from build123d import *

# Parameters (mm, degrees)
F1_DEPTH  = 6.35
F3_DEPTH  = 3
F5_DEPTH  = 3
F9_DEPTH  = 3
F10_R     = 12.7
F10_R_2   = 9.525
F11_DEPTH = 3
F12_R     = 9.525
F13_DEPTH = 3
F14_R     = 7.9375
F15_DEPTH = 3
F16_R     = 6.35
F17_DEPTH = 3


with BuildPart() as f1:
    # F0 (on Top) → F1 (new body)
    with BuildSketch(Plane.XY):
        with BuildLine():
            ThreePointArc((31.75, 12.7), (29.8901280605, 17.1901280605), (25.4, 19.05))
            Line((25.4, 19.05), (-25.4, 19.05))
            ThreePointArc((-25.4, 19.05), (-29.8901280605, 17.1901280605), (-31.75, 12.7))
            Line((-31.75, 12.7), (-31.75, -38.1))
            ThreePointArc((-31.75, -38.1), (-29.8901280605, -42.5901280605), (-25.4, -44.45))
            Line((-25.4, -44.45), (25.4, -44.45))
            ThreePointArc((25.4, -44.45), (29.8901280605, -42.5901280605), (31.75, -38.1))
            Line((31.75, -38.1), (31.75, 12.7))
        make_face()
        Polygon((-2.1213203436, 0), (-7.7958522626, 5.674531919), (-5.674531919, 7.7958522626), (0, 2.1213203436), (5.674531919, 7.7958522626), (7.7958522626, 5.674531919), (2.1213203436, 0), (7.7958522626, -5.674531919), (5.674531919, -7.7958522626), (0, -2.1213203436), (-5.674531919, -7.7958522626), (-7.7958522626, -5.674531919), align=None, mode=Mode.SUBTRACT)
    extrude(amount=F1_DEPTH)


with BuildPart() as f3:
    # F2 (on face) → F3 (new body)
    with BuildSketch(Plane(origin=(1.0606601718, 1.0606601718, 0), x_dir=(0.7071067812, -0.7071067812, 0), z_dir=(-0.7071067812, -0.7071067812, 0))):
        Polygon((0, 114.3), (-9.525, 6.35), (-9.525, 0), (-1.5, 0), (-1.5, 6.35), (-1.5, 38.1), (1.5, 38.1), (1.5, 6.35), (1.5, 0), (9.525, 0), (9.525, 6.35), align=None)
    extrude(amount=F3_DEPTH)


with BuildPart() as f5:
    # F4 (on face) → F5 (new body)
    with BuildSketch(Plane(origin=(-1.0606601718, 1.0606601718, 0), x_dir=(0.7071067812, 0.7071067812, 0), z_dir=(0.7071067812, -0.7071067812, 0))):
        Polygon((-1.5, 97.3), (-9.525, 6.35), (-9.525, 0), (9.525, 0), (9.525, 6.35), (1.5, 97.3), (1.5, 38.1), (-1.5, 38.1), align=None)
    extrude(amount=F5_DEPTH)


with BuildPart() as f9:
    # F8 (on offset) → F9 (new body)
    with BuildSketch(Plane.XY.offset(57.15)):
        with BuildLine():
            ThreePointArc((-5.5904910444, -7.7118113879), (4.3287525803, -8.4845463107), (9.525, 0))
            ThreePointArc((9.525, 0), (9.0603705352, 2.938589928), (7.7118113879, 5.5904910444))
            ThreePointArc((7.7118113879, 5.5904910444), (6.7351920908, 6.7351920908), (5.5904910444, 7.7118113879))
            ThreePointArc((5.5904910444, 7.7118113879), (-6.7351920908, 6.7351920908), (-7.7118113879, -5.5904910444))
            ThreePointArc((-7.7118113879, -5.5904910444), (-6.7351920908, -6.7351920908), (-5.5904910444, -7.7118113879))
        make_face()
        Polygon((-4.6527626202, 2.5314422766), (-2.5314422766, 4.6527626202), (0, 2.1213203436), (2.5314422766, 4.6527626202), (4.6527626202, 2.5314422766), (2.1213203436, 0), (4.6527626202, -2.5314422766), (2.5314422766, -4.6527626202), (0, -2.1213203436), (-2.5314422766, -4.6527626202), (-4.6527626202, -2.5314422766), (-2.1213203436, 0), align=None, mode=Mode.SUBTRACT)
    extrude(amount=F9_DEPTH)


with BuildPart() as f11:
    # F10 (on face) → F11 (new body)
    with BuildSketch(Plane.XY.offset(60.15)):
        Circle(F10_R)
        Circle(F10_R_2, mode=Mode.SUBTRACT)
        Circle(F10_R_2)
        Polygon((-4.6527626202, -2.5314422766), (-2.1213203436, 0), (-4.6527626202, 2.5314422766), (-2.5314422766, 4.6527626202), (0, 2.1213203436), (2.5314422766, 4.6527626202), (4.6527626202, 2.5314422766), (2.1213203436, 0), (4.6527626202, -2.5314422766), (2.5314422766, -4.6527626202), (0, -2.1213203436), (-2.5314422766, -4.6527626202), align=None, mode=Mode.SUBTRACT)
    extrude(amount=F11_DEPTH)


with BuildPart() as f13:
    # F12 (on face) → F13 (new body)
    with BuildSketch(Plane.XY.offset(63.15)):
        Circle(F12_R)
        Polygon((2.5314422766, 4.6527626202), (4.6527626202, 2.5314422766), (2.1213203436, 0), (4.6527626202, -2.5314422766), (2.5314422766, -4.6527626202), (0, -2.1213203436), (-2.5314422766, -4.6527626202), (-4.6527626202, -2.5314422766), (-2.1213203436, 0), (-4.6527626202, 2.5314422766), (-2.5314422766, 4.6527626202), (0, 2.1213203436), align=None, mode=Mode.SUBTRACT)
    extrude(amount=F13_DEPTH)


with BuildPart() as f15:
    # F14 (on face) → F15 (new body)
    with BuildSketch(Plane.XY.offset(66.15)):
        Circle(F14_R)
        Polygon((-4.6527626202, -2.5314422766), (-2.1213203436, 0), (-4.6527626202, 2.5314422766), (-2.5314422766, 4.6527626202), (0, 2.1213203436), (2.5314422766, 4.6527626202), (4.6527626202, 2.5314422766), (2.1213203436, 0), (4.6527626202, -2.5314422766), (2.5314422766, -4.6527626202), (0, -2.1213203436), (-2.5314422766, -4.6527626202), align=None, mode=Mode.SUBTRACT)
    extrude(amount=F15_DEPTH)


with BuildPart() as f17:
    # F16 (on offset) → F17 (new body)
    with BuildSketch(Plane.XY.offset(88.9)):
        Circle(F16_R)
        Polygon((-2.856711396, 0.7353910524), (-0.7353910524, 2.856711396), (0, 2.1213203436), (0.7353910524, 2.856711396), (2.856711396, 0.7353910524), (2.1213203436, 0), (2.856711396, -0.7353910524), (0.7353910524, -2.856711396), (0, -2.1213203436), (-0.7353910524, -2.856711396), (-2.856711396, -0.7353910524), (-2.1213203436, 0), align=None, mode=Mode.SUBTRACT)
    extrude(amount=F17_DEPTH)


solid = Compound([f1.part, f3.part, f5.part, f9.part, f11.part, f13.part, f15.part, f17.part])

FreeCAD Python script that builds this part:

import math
import FreeCAD as App
import Part
import Sketcher
Q = App.Units.Quantity


def add_polygon(sketch, points):
    """Adds a closed chain of lines whose ends are joined by coincident constraints."""
    first, n = sketch.GeometryCount, len(points)
    for a, b in zip(points, points[1:] + points[:1]):
        sketch.addGeometry(Part.LineSegment(App.Vector(*a, 0), App.Vector(*b, 0)), False)
    for i in range(n):
        sketch.addConstraint(Sketcher.Constraint("Coincident", first + i, 2, first + (i + 1) % n, 1))

doc = App.newDocument("Part")
params = doc.addObject("Spreadsheet::Sheet", "Params")
for row, (alias, value) in enumerate([
    ("sketch1_width", "2 in"),
    ("sketch1_radius", "0.25 in"),
    ("pad1_length", "0.25 in"),
    ("sketch2_height", "1.5 in"),
    ("sketch2_height2", "0.25 in"),
    ("pad2_length", "3 mm"),
    ("sketch3_width", "0.75 in"),
    ("sketch3_height", "0.25 in"),
    ("pad3_length", "3 mm"),
    ("sketch4_radius", "0.375 in"),
    ("pad4_length", "3 mm"),
    ("sketch5_diameter", "1 in"),
    ("pad5_length", "3 mm"),
    ("sketch6_diameter", "0.75 in"),
    ("pad6_length", "3 mm"),
    ("sketch7_diameter", "0.625 in"),
    ("pad7_length", "3 mm"),
    ("sketch8_diameter", "0.5 in"),
    ("pad8_length", "3 mm"),
], start=1):
    params.set(f"A{row}", alias)
    params.set(f"B{row}", "=" + value)
    params.setAlias(f"B{row}", alias)

body = doc.addObject("PartDesign::Body", "Body")

# Sketch on XY plane
sketch1 = doc.addObject("Sketcher::SketchObject", "Sketch")
body.addObject(sketch1)
sketch1.AttachmentSupport = (doc.XY_Plane, [""])
sketch1.MapMode = "FlatFace"
sketch1.addGeometry(Part.ArcOfCircle(Part.Circle(App.Vector(25.4, 12.7, 0), App.Vector(0, 0, 1), 6.3), math.radians(0), math.radians(90)), False)  # 0
sketch1.addGeometry(Part.LineSegment(App.Vector(25.4, 19.1, 0), App.Vector(-25.4, 19.1, 0)), False)  # 1
sketch1.addGeometry(Part.ArcOfCircle(Part.Circle(App.Vector(-25.4, 12.7, 0), App.Vector(0, 0, 1), 6.3), math.radians(90), math.radians(180)), False)  # 2
sketch1.addGeometry(Part.LineSegment(App.Vector(-31.8, 12.7, 0), App.Vector(-31.8, -38.1, 0)), False)  # 3
sketch1.addGeometry(Part.ArcOfCircle(Part.Circle(App.Vector(-25.4, -38.1, 0), App.Vector(0, 0, 1), 6.3), math.radians(180), math.radians(270)), False)  # 4
sketch1.addGeometry(Part.LineSegment(App.Vector(-25.4, -44.5, 0), App.Vector(25.4, -44.5, 0)), False)  # 5
sketch1.addGeometry(Part.ArcOfCircle(Part.Circle(App.Vector(25.4, -38.1, 0), App.Vector(0, 0, 1), 6.3), math.radians(-90), math.radians(0)), False)  # 6
sketch1.addGeometry(Part.LineSegment(App.Vector(31.8, -38.1, 0), App.Vector(31.8, 12.7, 0)), False)  # 7
add_polygon(sketch1, [(-7.8, -5.7), (-2.1, 0), (-7.8, 5.7), (-5.7, 7.8), (0, 2.1), (5.7, 7.8), (7.8, 5.7), (2.1, 0), (7.8, -5.7), (5.7, -7.8), (0, -2.1), (-5.7, -7.8)])  # lines 8-19
sketch1.addConstraint([
    Sketcher.Constraint("Tangent", 0, 2, 1, 1),
    Sketcher.Constraint("Tangent", 1, 2, 2, 1),
    Sketcher.Constraint("Tangent", 2, 2, 3, 1),
    Sketcher.Constraint("Tangent", 3, 2, 4, 1),
    Sketcher.Constraint("Tangent", 4, 2, 5, 1),
    Sketcher.Constraint("Tangent", 5, 2, 6, 1),
    Sketcher.Constraint("Tangent", 6, 2, 7, 1),
    Sketcher.Constraint("Tangent", 7, 2, 0, 1),
    Sketcher.Constraint("Horizontal", 1),
    Sketcher.Constraint("Vertical", 3),
    Sketcher.Constraint("Horizontal", 5),
    Sketcher.Constraint("Vertical", 7),
    Sketcher.Constraint("Equal", 0, 2),
    Sketcher.Constraint("Equal", 2, 4),
    Sketcher.Constraint("Equal", 4, 6),
    Sketcher.Constraint("Symmetric", 8, 2, 14, 2, -1, 1),
    Sketcher.Constraint("Symmetric", 9, 2, 15, 2, -1, 1),
    Sketcher.Constraint("Symmetric", 10, 2, 16, 2, -1, 1),
    Sketcher.Constraint("Symmetric", 11, 2, 17, 2, -1, 1),
    Sketcher.Constraint("Symmetric", 12, 2, 18, 2, -1, 1),
    Sketcher.Constraint("Symmetric", 13, 2, 19, 2, -1, 1),
    Sketcher.Constraint("Symmetric", 10, 2, 12, 2, -2),
    Sketcher.Constraint("Symmetric", 9, 2, 13, 2, -2),
    Sketcher.Constraint("PointOnObject", 8, 2, -1),
    Sketcher.Constraint("PointOnObject", 11, 2, -2),
    Sketcher.Constraint("Perpendicular", 8, 9),
    Sketcher.Constraint("Perpendicular", 9, 10),
    Sketcher.Constraint("Perpendicular", 10, 11),
    Sketcher.Constraint("Equal", 5, 3),
    Sketcher.Constraint("Equal", 9, 11),
    Sketcher.Constraint("DistanceX", 1, 2, 1, 1, Q("2 in")),
    Sketcher.Constraint("Radius", 0, Q("0.25 in")),
    Sketcher.Constraint("DistanceX", -1, 1, 0, 3, Q("1 in")),
    Sketcher.Constraint("DistanceY", -1, 1, 0, 3, Q("0.5 in")),
    Sketcher.Constraint("Distance", 8, Q("8.025 mm")),
    Sketcher.Constraint("Distance", 10, Q("3 mm")),
])
sketch1.setExpression("Constraints[42]", "Params.sketch1_width")
sketch1.setExpression("Constraints[43]", "Params.sketch1_radius")
pad1 = doc.addObject("PartDesign::Pad", "Pad")
body.addObject(pad1)
pad1.Profile = sketch1
pad1.setExpression("Length", "Params.pad1_length")
body2 = doc.addObject("PartDesign::Body", "Body001")

# Sketch on an angled plane
sketch2 = doc.addObject("Sketcher::SketchObject", "Sketch001")
body2.addObject(sketch2)
sketch2.Placement = App.Placement(App.Vector(1.06066, 1.06066, 0), App.Rotation(App.Vector(0.707106781, -0.707106781, 0), App.Vector(0, 0, 0.999999999), App.Vector(-0.707106781, -0.707106781, 0), "ZXY"))
add_polygon(sketch2, [(0, 114.3), (-9.5, 6.3), (-9.5, 0), (-1.5, 0), (-1.5, 38.1), (1.5, 38.1), (1.5, 0), (9.5, 0), (9.5, 6.3)])  # lines 0-8
sketch2.addConstraint([
    Sketcher.Constraint("Vertical", 1),
    Sketcher.Constraint("Horizontal", 2),
    Sketcher.Constraint("Vertical", 3),
    Sketcher.Constraint("Horizontal", 4),
    Sketcher.Constraint("Vertical", 5),
    Sketcher.Constraint("Horizontal", 6),
    Sketcher.Constraint("Vertical", 7),
    Sketcher.Constraint("Symmetric", 2, 2, 5, 2, -1, 1),
    Sketcher.Constraint("Symmetric", 1, 2, 6, 2, -2),
    Sketcher.Constraint("PointOnObject", 8, 2, -2),
    Sketcher.Constraint("Horizontal", 0, 2, 7, 2),
    Sketcher.Constraint("DistanceY", 3, 1, 3, 2, Q("1.5 in")),
    Sketcher.Constraint("DistanceY", 3, 2, 8, 2, Q("3 in")),
    Sketcher.Constraint("DistanceY", 1, 2, 1, 1, Q("0.25 in")),
    Sketcher.Constraint("DistanceX", 1, 2, 6, 2, Q("0.75 in")),
    Sketcher.Constraint("DistanceX", 2, 1, 2, 2, Q("8.025 mm")),
])
sketch2.setExpression("Constraints[20]", "Params.sketch2_height")
sketch2.setExpression("Constraints[22]", "Params.sketch2_height2")
pad2 = doc.addObject("PartDesign::Pad", "Pad001")
body2.addObject(pad2)
pad2.Profile = sketch2
pad2.setExpression("Length", "Params.pad2_length")
body3 = doc.addObject("PartDesign::Body", "Body002")

# Sketch on an angled plane
sketch3 = doc.addObject("Sketcher::SketchObject", "Sketch002")
body3.addObject(sketch3)
sketch3.Placement = App.Placement(App.Vector(-1.06066, 1.06066, 0), App.Rotation(App.Vector(0.707106781, 0.707106781, 0), App.Vector(0, 0, 0.999999999), App.Vector(0.707106781, -0.707106781, 0), "ZXY"))
add_polygon(sketch3, [(-1.5, 97.3), (-9.5, 6.3), (-9.5, 0), (9.5, 0), (9.5, 6.3), (1.5, 97.3), (1.5, 38.1), (-1.5, 38.1)])  # lines 0-7
sketch3.addConstraint([
    Sketcher.Constraint("Vertical", 1),
    Sketcher.Constraint("Horizontal", 2),
    Sketcher.Constraint("Vertical", 3),
    Sketcher.Constraint("Vertical", 5),
    Sketcher.Constraint("Horizontal", 6),
    Sketcher.Constraint("Vertical", 7),
    Sketcher.Constraint("Symmetric", 1, 2, 2, 2, -1, 1),
    Sketcher.Constraint("Symmetric", 4, 2, 7, 2, -2),
    Sketcher.Constraint("Horizontal", 0, 2, 3, 2),
    Sketcher.Constraint("DistanceX", 2, 1, 2, 2, Q("0.75 in")),
    Sketcher.Constraint("DistanceY", 1, 2, 1, 1, Q("0.25 in")),
    Sketcher.Constraint("DistanceY", -1, 1, 5, 2, Q("1.5 in")),
    Sketcher.Constraint("DistanceX", 6, 2, 6, 1, Q("3 mm")),
    Sketcher.Constraint("DistanceY", 5, 2, 5, 1, Q("59.2 mm")),
])
sketch3.setExpression("Constraints[17]", "Params.sketch3_width")
sketch3.setExpression("Constraints[18]", "Params.sketch3_height")
pad3 = doc.addObject("PartDesign::Pad", "Pad002")
body3.addObject(pad3)
pad3.Profile = sketch3
pad3.setExpression("Length", "Params.pad3_length")
body4 = doc.addObject("PartDesign::Body", "Body003")

# Sketch on XY plane
sketch4 = doc.addObject("Sketcher::SketchObject", "Sketch003")
body4.addObject(sketch4)
sketch4.AttachmentSupport = (doc.getObject("XY_Plane003"), [""])
sketch4.MapMode = "FlatFace"
sketch4.AttachmentOffset = App.Placement(App.Vector(0, 0, 2.25 * 25.4), App.Rotation())
sketch4.addGeometry(Part.ArcOfCircle(Part.Circle(App.Vector(0, 0, 0), App.Vector(0, 0, 1), 9.5), math.radians(-126), math.radians(36)), False)  # 0
sketch4.addGeometry(Part.ArcOfCircle(Part.Circle(App.Vector(0, 0, 0), App.Vector(0, 0, 1), 9.5), math.radians(35.94), math.radians(54.06)), False)  # 1
sketch4.addGeometry(Part.ArcOfCircle(Part.Circle(App.Vector(0, 0, 0), App.Vector(0, 0, 1), 9.5), math.radians(54), math.radians(216)), False)  # 2
sketch4.addGeometry(Part.ArcOfCircle(Part.Circle(App.Vector(0, 0, 0), App.Vector(0, 0, 1), 9.5), math.radians(-144.06), math.radians(-125.94)), False)  # 3
add_polygon(sketch4, [(-2.1, 0), (-4.7, 2.5), (-2.5, 4.7), (0, 2.1), (2.5, 4.7), (4.7, 2.5), (2.1, 0), (4.7, -2.5), (2.5, -4.7), (0, -2.1), (-2.5, -4.7), (-4.7, -2.5)])  # lines 4-15
sketch4.addConstraint([
    Sketcher.Constraint("Tangent", 0, 2, 1, 1),
    Sketcher.Constraint("Tangent", 1, 2, 2, 1),
    Sketcher.Constraint("Tangent", 2, 2, 3, 1),
    Sketcher.Constraint("Tangent", 3, 2, 0, 1),
    Sketcher.Constraint("Coincident", 0, 3, -1, 1),
    Sketcher.Constraint("Equal", 0, 1),
    Sketcher.Constraint("Symmetric", 4, 2, 10, 2, -1, 1),
    Sketcher.Constraint("Symmetric", 5, 2, 11, 2, -1, 1),
    Sketcher.Constraint("Symmetric", 6, 2, 12, 2, -1, 1),
    Sketcher.Constraint("Symmetric", 7, 2, 13, 2, -1, 1),
    Sketcher.Constraint("Symmetric", 8, 2, 14, 2, -1, 1),
    Sketcher.Constraint("Symmetric", 9, 2, 15, 2, -1, 1),
    Sketcher.Constraint("Symmetric", 5, 2, 7, 2, -2),
    Sketcher.Constraint("Symmetric", 4, 2, 8, 2, -2),
    Sketcher.Constraint("PointOnObject", 6, 2, -2),
    Sketcher.Constraint("PointOnObject", 9, 2, -1),
    Sketcher.Constraint("Perpendicular", 4, 5),
    Sketcher.Constraint("Perpendicular", 5, 6),
    Sketcher.Constraint("Perpendicular", 6, 7),
    Sketcher.Constraint("Equal", 4, 6),
    Sketcher.Constraint("Radius", 0, Q("0.375 in")),
    Sketcher.Constraint("Distance", 4, Q("3.58 mm")),
    Sketcher.Constraint("Distance", 5, Q("3 mm")),
    Sketcher.Constraint("DistanceX", -1, 1, 0, 2, Q("7.711811 mm")),
    Sketcher.Constraint("DistanceX", -1, 1, 1, 2, Q("5.590491 mm")),
    Sketcher.Constraint("DistanceX", 2, 2, -1, 1, Q("7.711811 mm")),
    Sketcher.Constraint("DistanceX", 3, 2, -1, 1, Q("5.590491 mm")),
])
sketch4.setExpression("Constraints[32]", "Params.sketch4_radius")
pad4 = doc.addObject("PartDesign::Pad", "Pad003")
body4.addObject(pad4)
pad4.Profile = sketch4
pad4.setExpression("Length", "Params.pad4_length")
body5 = doc.addObject("PartDesign::Body", "Body004")

# Sketch on XY plane
sketch5 = doc.addObject("Sketcher::SketchObject", "Sketch004")
body5.addObject(sketch5)
sketch5.AttachmentSupport = (doc.getObject("XY_Plane004"), [""])
sketch5.MapMode = "FlatFace"
sketch5.AttachmentOffset = App.Placement(App.Vector(0, 0, 60.15), App.Rotation())
sketch5.addGeometry(Part.Circle(App.Vector(0, 0, 0), App.Vector(0, 0, 1), 12.7), False)  # 0
add_polygon(sketch5, [(-2.5, -4.7), (-4.7, -2.5), (-2.1, 0), (-4.7, 2.5), (-2.5, 4.7), (0, 2.1), (2.5, 4.7), (4.7, 2.5), (2.1, 0), (4.7, -2.5), (2.5, -4.7), (0, -2.1)])  # lines 1-12
sketch5.addConstraint([
    Sketcher.Constraint("Coincident", 0, 3, -1, 1),
    Sketcher.Constraint("Symmetric", 1, 2, 7, 2, -1, 1),
    Sketcher.Constraint("Symmetric", 2, 2, 8, 2, -1, 1),
    Sketcher.Constraint("Symmetric", 3, 2, 9, 2, -1, 1),
    Sketcher.Constraint("Symmetric", 4, 2, 10, 2, -1, 1),
    Sketcher.Constraint("Symmetric", 5, 2, 11, 2, -1, 1),
    Sketcher.Constraint("Symmetric", 6, 2, 12, 2, -1, 1),
    Sketcher.Constraint("Symmetric", 4, 2, 6, 2, -2),
    Sketcher.Constraint("Symmetric", 3, 2, 7, 2, -2),
    Sketcher.Constraint("PointOnObject", 2, 2, -1),
    Sketcher.Constraint("PointOnObject", 5, 2, -2),
    Sketcher.Constraint("Perpendicular", 1, 2),
    Sketcher.Constraint("Perpendicular", 2, 3),
    Sketcher.Constraint("Perpendicular", 4, 5),
    Sketcher.Constraint("Equal", 3, 5),
    Sketcher.Constraint("Diameter", 0, Q("1 in")),
    Sketcher.Constraint("Distance", 1, Q("3 mm")),
    Sketcher.Constraint("Distance", 2, Q("3.58 mm")),
])
sketch5.setExpression("Constraints[27]", "Params.sketch5_diameter")
pad5 = doc.addObject("PartDesign::Pad", "Pad004")
body5.addObject(pad5)
pad5.Profile = sketch5
pad5.setExpression("Length", "Params.pad5_length")
body6 = doc.addObject("PartDesign::Body", "Body005")

# Sketch on XY plane
sketch6 = doc.addObject("Sketcher::SketchObject", "Sketch005")
body6.addObject(sketch6)
sketch6.AttachmentSupport = (doc.getObject("XY_Plane005"), [""])
sketch6.MapMode = "FlatFace"
sketch6.AttachmentOffset = App.Placement(App.Vector(0, 0, 63.15), App.Rotation())
sketch6.addGeometry(Part.Circle(App.Vector(0, 0, 0), App.Vector(0, 0, 1), 9.5), False)  # 0
add_polygon(sketch6, [(0, 2.1), (2.5, 4.7), (4.7, 2.5), (2.1, 0), (4.7, -2.5), (2.5, -4.7), (0, -2.1), (-2.5, -4.7), (-4.7, -2.5), (-2.1, 0), (-4.7, 2.5), (-2.5, 4.7)])  # lines 1-12
sketch6.addConstraint([
    Sketcher.Constraint("Coincident", 0, 3, -1, 1),
    Sketcher.Constraint("Symmetric", 1, 2, 7, 2, -1, 1),
    Sketcher.Constraint("Symmetric", 2, 2, 8, 2, -1, 1),
    Sketcher.Constraint("Symmetric", 3, 2, 9, 2, -1, 1),
    Sketcher.Constraint("Symmetric", 4, 2, 10, 2, -1, 1),
    Sketcher.Constraint("Symmetric", 5, 2, 11, 2, -1, 1),
    Sketcher.Constraint("Symmetric", 6, 2, 12, 2, -1, 1),
    Sketcher.Constraint("Symmetric", 5, 2, 7, 2, -2),
    Sketcher.Constraint("Symmetric", 4, 2, 8, 2, -2),
    Sketcher.Constraint("PointOnObject", 3, 2, -1),
    Sketcher.Constraint("PointOnObject", 6, 2, -2),
    Sketcher.Constraint("Perpendicular", 1, 2),
    Sketcher.Constraint("Perpendicular", 2, 3),
    Sketcher.Constraint("Perpendicular", 3, 4),
    Sketcher.Constraint("Equal", 1, 3),
    Sketcher.Constraint("Diameter", 0, Q("0.75 in")),
    Sketcher.Constraint("Distance", 1, Q("3.58 mm")),
    Sketcher.Constraint("Distance", 2, Q("3 mm")),
])
sketch6.setExpression("Constraints[27]", "Params.sketch6_diameter")
pad6 = doc.addObject("PartDesign::Pad", "Pad005")
body6.addObject(pad6)
pad6.Profile = sketch6
pad6.setExpression("Length", "Params.pad6_length")
body7 = doc.addObject("PartDesign::Body", "Body006")

# Sketch on XY plane
sketch7 = doc.addObject("Sketcher::SketchObject", "Sketch006")
body7.addObject(sketch7)
sketch7.AttachmentSupport = (doc.getObject("XY_Plane006"), [""])
sketch7.MapMode = "FlatFace"
sketch7.AttachmentOffset = App.Placement(App.Vector(0, 0, 66.15), App.Rotation())
sketch7.addGeometry(Part.Circle(App.Vector(0, 0, 0), App.Vector(0, 0, 1), 7.9), False)  # 0
add_polygon(sketch7, [(-2.5, -4.7), (-4.7, -2.5), (-2.1, 0), (-4.7, 2.5), (-2.5, 4.7), (0, 2.1), (2.5, 4.7), (4.7, 2.5), (2.1, 0), (4.7, -2.5), (2.5, -4.7), (0, -2.1)])  # lines 1-12
sketch7.addConstraint([
    Sketcher.Constraint("Coincident", 0, 3, -1, 1),
    Sketcher.Constraint("Symmetric", 1, 2, 7, 2, -1, 1),
    Sketcher.Constraint("Symmetric", 2, 2, 8, 2, -1, 1),
    Sketcher.Constraint("Symmetric", 3, 2, 9, 2, -1, 1),
    Sketcher.Constraint("Symmetric", 4, 2, 10, 2, -1, 1),
    Sketcher.Constraint("Symmetric", 5, 2, 11, 2, -1, 1),
    Sketcher.Constraint("Symmetric", 6, 2, 12, 2, -1, 1),
    Sketcher.Constraint("Symmetric", 4, 2, 6, 2, -2),
    Sketcher.Constraint("Symmetric", 3, 2, 7, 2, -2),
    Sketcher.Constraint("PointOnObject", 2, 2, -1),
    Sketcher.Constraint("PointOnObject", 5, 2, -2),
    Sketcher.Constraint("Perpendicular", 1, 2),
    Sketcher.Constraint("Perpendicular", 2, 3),
    Sketcher.Constraint("Perpendicular", 4, 5),
    Sketcher.Constraint("Equal", 3, 5),
    Sketcher.Constraint("Diameter", 0, Q("0.625 in")),
    Sketcher.Constraint("Distance", 1, Q("3 mm")),
    Sketcher.Constraint("Distance", 2, Q("3.58 mm")),
])
sketch7.setExpression("Constraints[27]", "Params.sketch7_diameter")
pad7 = doc.addObject("PartDesign::Pad", "Pad006")
body7.addObject(pad7)
pad7.Profile = sketch7
pad7.setExpression("Length", "Params.pad7_length")
body8 = doc.addObject("PartDesign::Body", "Body007")

# Sketch on XY plane
sketch8 = doc.addObject("Sketcher::SketchObject", "Sketch007")
body8.addObject(sketch8)
sketch8.AttachmentSupport = (doc.getObject("XY_Plane007"), [""])
sketch8.MapMode = "FlatFace"
sketch8.AttachmentOffset = App.Placement(App.Vector(0, 0, 3.5 * 25.4), App.Rotation())
sketch8.addGeometry(Part.Circle(App.Vector(0, 0, 0), App.Vector(0, 0, 1), 6.3), False)  # 0
add_polygon(sketch8, [(-2.1, 0), (-2.9, 0.7), (-0.7, 2.9), (0, 2.1), (0.7, 2.9), (2.9, 0.7), (2.1, 0), (2.9, -0.7), (0.7, -2.9), (0, -2.1), (-0.7, -2.9), (-2.9, -0.7)])  # lines 1-12
sketch8.addConstraint([
    Sketcher.Constraint("Coincident", 0, 3, -1, 1),
    Sketcher.Constraint("Symmetric", 1, 2, 7, 2, -1, 1),
    Sketcher.Constraint("Symmetric", 2, 2, 8, 2, -1, 1),
    Sketcher.Constraint("Symmetric", 3, 2, 9, 2, -1, 1),
    Sketcher.Constraint("Symmetric", 4, 2, 10, 2, -1, 1),
    Sketcher.Constraint("Symmetric", 5, 2, 11, 2, -1, 1),
    Sketcher.Constraint("Symmetric", 6, 2, 12, 2, -1, 1),
    Sketcher.Constraint("Symmetric", 2, 2, 4, 2, -2),
    Sketcher.Constraint("Symmetric", 1, 2, 5, 2, -2),
    Sketcher.Constraint("PointOnObject", 3, 2, -2),
    Sketcher.Constraint("PointOnObject", 6, 2, -1),
    Sketcher.Constraint("Perpendicular", 1, 2),
    Sketcher.Constraint("Perpendicular", 2, 3),
    Sketcher.Constraint("Perpendicular", 3, 4),
    Sketcher.Constraint("Equal", 1, 3),
    Sketcher.Constraint("Diameter", 0, Q("0.5 in")),
    Sketcher.Constraint("Distance", 1, Q("1.04 mm")),
    Sketcher.Constraint("Distance", 2, Q("3 mm")),
])
sketch8.setExpression("Constraints[27]", "Params.sketch8_diameter")
pad8 = doc.addObject("PartDesign::Pad", "Pad007")
body8.addObject(pad8)
pad8.Profile = sketch8
pad8.setExpression("Length", "Params.pad8_length")

doc.recompute()
